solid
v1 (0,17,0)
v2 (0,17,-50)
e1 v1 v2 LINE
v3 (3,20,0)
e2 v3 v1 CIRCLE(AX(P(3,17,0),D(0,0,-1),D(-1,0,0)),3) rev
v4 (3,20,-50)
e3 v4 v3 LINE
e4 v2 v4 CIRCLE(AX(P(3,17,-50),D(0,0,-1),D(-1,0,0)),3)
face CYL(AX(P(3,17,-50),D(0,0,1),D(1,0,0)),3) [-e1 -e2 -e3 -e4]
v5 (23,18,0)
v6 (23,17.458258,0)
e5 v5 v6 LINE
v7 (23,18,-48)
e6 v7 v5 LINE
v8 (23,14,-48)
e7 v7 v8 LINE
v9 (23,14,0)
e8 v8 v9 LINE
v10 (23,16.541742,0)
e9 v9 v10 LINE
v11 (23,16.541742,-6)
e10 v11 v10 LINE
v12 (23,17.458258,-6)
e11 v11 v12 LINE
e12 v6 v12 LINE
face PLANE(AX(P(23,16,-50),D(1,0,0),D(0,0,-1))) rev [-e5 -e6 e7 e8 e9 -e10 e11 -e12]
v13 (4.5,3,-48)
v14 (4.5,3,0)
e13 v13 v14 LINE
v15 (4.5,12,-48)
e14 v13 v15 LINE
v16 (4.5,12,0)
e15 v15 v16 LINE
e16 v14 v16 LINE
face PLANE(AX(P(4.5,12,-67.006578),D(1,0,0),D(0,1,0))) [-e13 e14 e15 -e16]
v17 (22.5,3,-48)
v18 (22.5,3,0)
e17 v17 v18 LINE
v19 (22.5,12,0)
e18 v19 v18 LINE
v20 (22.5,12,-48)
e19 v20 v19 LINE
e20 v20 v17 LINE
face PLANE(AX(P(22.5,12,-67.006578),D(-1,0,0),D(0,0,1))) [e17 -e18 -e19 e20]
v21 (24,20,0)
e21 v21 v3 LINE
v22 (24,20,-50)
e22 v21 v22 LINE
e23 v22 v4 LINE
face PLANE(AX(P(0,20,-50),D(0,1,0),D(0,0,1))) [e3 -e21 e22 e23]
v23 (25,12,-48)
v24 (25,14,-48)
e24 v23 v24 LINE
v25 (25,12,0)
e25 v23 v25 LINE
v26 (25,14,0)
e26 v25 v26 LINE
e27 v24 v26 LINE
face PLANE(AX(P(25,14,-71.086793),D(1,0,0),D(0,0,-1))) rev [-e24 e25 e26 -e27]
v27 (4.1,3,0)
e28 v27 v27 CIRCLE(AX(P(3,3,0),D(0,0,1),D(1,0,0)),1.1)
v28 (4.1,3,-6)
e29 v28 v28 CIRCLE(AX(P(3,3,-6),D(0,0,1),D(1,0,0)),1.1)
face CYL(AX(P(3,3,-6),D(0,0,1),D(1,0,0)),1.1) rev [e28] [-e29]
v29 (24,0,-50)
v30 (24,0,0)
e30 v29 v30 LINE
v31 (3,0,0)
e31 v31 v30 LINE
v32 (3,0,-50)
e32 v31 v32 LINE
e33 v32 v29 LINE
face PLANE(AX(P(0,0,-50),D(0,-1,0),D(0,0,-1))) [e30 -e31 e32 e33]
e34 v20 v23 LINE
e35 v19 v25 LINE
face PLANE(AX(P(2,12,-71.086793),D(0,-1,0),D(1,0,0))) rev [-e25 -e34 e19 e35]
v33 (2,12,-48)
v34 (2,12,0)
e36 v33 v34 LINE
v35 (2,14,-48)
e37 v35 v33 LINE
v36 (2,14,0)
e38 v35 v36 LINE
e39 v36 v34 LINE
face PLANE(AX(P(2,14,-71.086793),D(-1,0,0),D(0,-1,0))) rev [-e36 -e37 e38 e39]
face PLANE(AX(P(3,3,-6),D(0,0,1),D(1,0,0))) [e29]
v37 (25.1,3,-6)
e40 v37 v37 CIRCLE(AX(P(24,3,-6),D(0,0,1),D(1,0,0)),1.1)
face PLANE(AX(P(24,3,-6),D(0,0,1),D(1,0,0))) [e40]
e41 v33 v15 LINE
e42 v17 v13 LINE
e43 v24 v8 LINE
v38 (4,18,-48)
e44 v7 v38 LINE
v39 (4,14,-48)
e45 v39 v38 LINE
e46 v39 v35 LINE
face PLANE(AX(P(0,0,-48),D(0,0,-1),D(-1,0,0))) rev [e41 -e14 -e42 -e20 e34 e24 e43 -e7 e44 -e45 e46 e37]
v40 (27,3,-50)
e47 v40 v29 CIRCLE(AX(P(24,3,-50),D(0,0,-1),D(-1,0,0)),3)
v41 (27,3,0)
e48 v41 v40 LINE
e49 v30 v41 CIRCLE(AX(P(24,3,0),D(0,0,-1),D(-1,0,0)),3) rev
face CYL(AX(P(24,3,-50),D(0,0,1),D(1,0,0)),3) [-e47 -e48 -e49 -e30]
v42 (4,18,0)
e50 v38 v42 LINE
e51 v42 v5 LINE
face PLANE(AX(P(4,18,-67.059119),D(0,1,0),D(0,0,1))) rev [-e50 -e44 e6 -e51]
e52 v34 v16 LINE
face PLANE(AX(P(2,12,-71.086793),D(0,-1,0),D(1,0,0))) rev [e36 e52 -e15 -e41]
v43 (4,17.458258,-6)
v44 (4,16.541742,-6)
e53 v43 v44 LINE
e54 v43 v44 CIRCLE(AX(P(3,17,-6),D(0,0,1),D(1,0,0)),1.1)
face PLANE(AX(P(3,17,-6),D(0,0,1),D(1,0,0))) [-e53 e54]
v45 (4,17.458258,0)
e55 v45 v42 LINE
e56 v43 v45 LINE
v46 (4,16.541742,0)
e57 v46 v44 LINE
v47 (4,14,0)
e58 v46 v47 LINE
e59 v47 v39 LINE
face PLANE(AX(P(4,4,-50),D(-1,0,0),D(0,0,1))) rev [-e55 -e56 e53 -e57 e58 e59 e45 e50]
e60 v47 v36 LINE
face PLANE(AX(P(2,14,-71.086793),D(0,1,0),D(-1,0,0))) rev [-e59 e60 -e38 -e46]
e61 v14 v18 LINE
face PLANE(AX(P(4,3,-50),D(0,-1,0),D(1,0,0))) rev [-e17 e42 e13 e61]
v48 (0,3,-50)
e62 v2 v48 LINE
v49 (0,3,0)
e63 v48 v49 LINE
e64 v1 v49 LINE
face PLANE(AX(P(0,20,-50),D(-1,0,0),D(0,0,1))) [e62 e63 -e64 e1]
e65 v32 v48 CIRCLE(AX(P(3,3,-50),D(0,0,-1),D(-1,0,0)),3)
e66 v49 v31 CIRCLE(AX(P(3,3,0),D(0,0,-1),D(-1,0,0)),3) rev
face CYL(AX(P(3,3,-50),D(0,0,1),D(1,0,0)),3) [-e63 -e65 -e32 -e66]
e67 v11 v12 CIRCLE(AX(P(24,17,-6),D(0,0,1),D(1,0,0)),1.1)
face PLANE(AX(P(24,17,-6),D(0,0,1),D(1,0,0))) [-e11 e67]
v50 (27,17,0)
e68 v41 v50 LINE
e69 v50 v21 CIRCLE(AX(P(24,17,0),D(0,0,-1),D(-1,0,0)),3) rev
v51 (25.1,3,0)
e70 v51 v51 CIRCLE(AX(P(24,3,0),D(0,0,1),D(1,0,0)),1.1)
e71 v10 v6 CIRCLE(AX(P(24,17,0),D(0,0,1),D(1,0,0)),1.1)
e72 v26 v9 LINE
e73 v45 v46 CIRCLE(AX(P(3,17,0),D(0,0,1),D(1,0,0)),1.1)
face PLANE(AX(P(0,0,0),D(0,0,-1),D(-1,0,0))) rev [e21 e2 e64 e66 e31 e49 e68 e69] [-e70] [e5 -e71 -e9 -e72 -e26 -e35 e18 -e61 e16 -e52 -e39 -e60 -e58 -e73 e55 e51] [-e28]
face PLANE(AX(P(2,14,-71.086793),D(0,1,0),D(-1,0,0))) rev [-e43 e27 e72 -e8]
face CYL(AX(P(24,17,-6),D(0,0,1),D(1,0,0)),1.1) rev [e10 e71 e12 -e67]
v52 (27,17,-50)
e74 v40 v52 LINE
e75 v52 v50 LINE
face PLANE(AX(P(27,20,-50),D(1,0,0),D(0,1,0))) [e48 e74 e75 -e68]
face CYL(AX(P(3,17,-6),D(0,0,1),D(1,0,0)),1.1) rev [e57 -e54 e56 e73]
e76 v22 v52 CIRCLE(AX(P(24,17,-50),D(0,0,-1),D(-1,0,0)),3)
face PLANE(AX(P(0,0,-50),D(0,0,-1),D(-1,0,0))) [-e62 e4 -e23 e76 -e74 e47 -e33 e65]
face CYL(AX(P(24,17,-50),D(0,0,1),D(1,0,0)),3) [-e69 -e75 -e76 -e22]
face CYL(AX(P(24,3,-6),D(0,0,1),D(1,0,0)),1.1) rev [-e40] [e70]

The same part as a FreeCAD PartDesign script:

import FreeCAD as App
import Part
import Sketcher

V = App.Vector
Q = App.Units.Quantity


def edges_at(feature, points):
    """Names of the edges that pass closest to the given points."""
    edges = feature.Shape.Edges
    near = lambda p: min(range(len(edges)), key=lambda i: edges[i].distToShape(Part.Vertex(*p))[0])
    return sorted({f"Edge{near(p) + 1}" for p in points})

doc = App.newDocument("Part")
body = doc.addObject("PartDesign::Body", "Body")

sketch1 = doc.addObject("Sketcher::SketchObject", "Sketch")
body.addObject(sketch1)
sketch1.AttachmentSupport = (doc.XY_Plane, [""])
sketch1.MapMode = "FlatFace"
sketch1.addGeometry(Part.LineSegment(V(0, 20, 0), V(0, 0, 0)), False)
sketch1.addGeometry(Part.LineSegment(V(0, 0, 0), V(27, 0, 0)), False)
sketch1.addGeometry(Part.LineSegment(V(27, 0, 0), V(27, 20, 0)), False)
sketch1.addGeometry(Part.LineSegment(V(27, 20, 0), V(0, 20, 0)), False)
sketch1.addGeometry(Part.LineSegment(V(4, 3, 0), V(4, 17, 0)), False)
sketch1.addGeometry(Part.LineSegment(V(4, 17, 0), V(23, 17, 0)), False)
sketch1.addGeometry(Part.LineSegment(V(23, 17, 0), V(23, 3, 0)), False)
sketch1.addGeometry(Part.LineSegment(V(23, 3, 0), V(4, 3, 0)), False)
sketch1.addConstraint(Sketcher.Constraint("Coincident", 0, 2, 1, 1))
sketch1.addConstraint(Sketcher.Constraint("Coincident", 1, 2, 2, 1))
sketch1.addConstraint(Sketcher.Constraint("Coincident", 2, 2, 3, 1))
sketch1.addConstraint(Sketcher.Constraint("Coincident", 3, 2, 0, 1))
sketch1.addConstraint(Sketcher.Constraint("Coincident", 4, 2, 5, 1))
sketch1.addConstraint(Sketcher.Constraint("Coincident", 5, 2, 6, 1))
sketch1.addConstraint(Sketcher.Constraint("Coincident", 6, 2, 7, 1))
sketch1.addConstraint(Sketcher.Constraint("Coincident", 7, 2, 4, 1))
sketch1.addConstraint(Sketcher.Constraint("Vertical", 0))
sketch1.addConstraint(Sketcher.Constraint("Horizontal", 1))
sketch1.addConstraint(Sketcher.Constraint("Vertical", 2))
sketch1.addConstraint(Sketcher.Constraint("Horizontal", 3))
sketch1.addConstraint(Sketcher.Constraint("Vertical", 4))
sketch1.addConstraint(Sketcher.Constraint("Horizontal", 5))
sketch1.addConstraint(Sketcher.Constraint("Vertical", 6))
sketch1.addConstraint(Sketcher.Constraint("Horizontal", 7))
sketch1.addConstraint(Sketcher.Constraint("Coincident", 0, 2, -1, 1))
sketch1.addConstraint(Sketcher.Constraint("DistanceX", 1, 1, 1, 2, Q("27 mm")))
sketch1.addConstraint(Sketcher.Constraint("DistanceX", 5, 1, 5, 2, Q("19 mm")))
sketch1.addConstraint(Sketcher.Constraint("DistanceY", 0, 2, 0, 1, Q("20 mm")))
sketch1.addConstraint(Sketcher.Constraint("DistanceY", 4, 1, 4, 2, Q("14 mm")))
sketch1.addConstraint(Sketcher.Constraint("DistanceX", -1, 1, 4, 2, Q("4 mm")))
sketch1.addConstraint(Sketcher.Constraint("DistanceY", -1, 1, 4, 2, Q("17 mm")))
pad1 = doc.addObject("PartDesign::Pad", "Pad")
body.addObject(pad1)
pad1.Profile = sketch1
pad1.Length = 50
pad1.Reversed = True

sketch2 = doc.addObject("Sketcher::SketchObject", "Sketch001")
body.addObject(sketch2)
sketch2.AttachmentSupport = (doc.XY_Plane, [""])
sketch2.MapMode = "FlatFace"
sketch2.AttachmentOffset = App.Placement(V(0, 0, -50), App.Rotation())
sketch2.addGeometry(Part.LineSegment(V(23, 17, 0), V(23, 3, 0)), False)
sketch2.addGeometry(Part.LineSegment(V(23, 3, 0), V(4, 3, 0)), False)
sketch2.addGeometry(Part.LineSegment(V(4, 3, 0), V(4, 17, 0)), False)
sketch2.addGeometry(Part.LineSegment(V(4, 17, 0), V(23, 17, 0)), False)
sketch2.addConstraint(Sketcher.Constraint("Coincident", 0, 2, 1, 1))
sketch2.addConstraint(Sketcher.Constraint("Coincident", 1, 2, 2, 1))
sketch2.addConstraint(Sketcher.Constraint("Coincident", 2, 2, 3, 1))
sketch2.addConstraint(Sketcher.Constraint("Coincident", 3, 2, 0, 1))
sketch2.addConstraint(Sketcher.Constraint("Vertical", 0))
sketch2.addConstraint(Sketcher.Constraint("Horizontal", 1))
sketch2.addConstraint(Sketcher.Constraint("Vertical", 2))
sketch2.addConstraint(Sketcher.Constraint("Horizontal", 3))
sketch2.addConstraint(Sketcher.Constraint("DistanceX", 1, 2, 1, 1, Q("19 mm")))
sketch2.addConstraint(Sketcher.Constraint("DistanceY", 0, 2, 0, 1, Q("14 mm")))
sketch2.addConstraint(Sketcher.Constraint("DistanceX", -1, 1, 0, 2, Q("23 mm")))
sketch2.addConstraint(Sketcher.Constraint("DistanceY", -1, 1, 0, 2, Q("3 mm")))
pad2 = doc.addObject("PartDesign::Pad", "Pad001")
body.addObject(pad2)
pad2.Profile = sketch2
pad2.Length = 2

sketch3 = doc.addObject("Sketcher::SketchObject", "Sketch002")
body.addObject(sketch3)
sketch3.AttachmentSupport = (doc.XY_Plane, [""])
sketch3.MapMode = "FlatFace"
sketch3.addGeometry(Part.LineSegment(V(2, 14, 0), V(2, 12, 0)), False)
sketch3.addGeometry(Part.LineSegment(V(2, 12, 0), V(25, 12, 0)), False)
sketch3.addGeometry(Part.LineSegment(V(25, 12, 0), V(25, 14, 0)), False)
sketch3.addGeometry(Part.LineSegment(V(25, 14, 0), V(2, 14, 0)), False)
sketch3.addConstraint(Sketcher.Constraint("Coincident", 0, 2, 1, 1))
sketch3.addConstraint(Sketcher.Constraint("Coincident", 1, 2, 2, 1))
sketch3.addConstraint(Sketcher.Constraint("Coincident", 2, 2, 3, 1))
sketch3.addConstraint(Sketcher.Constraint("Coincident", 3, 2, 0, 1))
sketch3.addConstraint(Sketcher.Constraint("Vertical", 0))
sketch3.addConstraint(Sketcher.Constraint("Horizontal", 1))
sketch3.addConstraint(Sketcher.Constraint("Vertical", 2))
sketch3.addConstraint(Sketcher.Constraint("Horizontal", 3))
sketch3.addConstraint(Sketcher.Constraint("DistanceX", 1, 1, 1, 2, Q("23 mm")))
sketch3.addConstraint(Sketcher.Constraint("DistanceY", 0, 2, 0, 1, Q("2 mm")))
sketch3.addConstraint(Sketcher.Constraint("DistanceX", -1, 1, 0, 2, Q("2 mm")))
sketch3.addConstraint(Sketcher.Constraint("DistanceY", -1, 1, 0, 2, Q("12 mm")))
pocket1 = doc.addObject("PartDesign::Pocket", "Pocket")
body.addObject(pocket1)
pocket1.Profile = sketch3
pocket1.Length = 48

sketch4 = doc.addObject("Sketcher::SketchObject", "Sketch003")
body.addObject(sketch4)
sketch4.AttachmentSupport = (doc.XY_Plane, [""])
sketch4.MapMode = "FlatFace"
sketch4.addGeometry(Part.LineSegment(V(4, 12, 0), V(4, 3, 0)), False)
sketch4.addGeometry(Part.LineSegment(V(4, 3, 0), V(4.5, 3, 0)), False)
sketch4.addGeometry(Part.LineSegment(V(4.5, 3, 0), V(4.5, 12, 0)), False)
sketch4.addGeometry(Part.LineSegment(V(4.5, 12, 0), V(4, 12, 0)), False)
sketch4.addGeometry(Part.LineSegment(V(22.5, 12, 0), V(22.5, 3, 0)), False)
sketch4.addGeometry(Part.LineSegment(V(22.5, 3, 0), V(23, 3, 0)), False)
sketch4.addGeometry(Part.LineSegment(V(23, 3, 0), V(23, 12, 0)), False)
sketch4.addGeometry(Part.LineSegment(V(23, 12, 0), V(22.5, 12, 0)), False)
sketch4.addGeometry(Part.LineSegment(V(4, 17, 0), V(4, 16.5, 0)), False)
sketch4.addGeometry(Part.LineSegment(V(4, 16.5, 0), V(23, 16.5, 0)), False)
sketch4.addGeometry(Part.LineSegment(V(23, 16.5, 0), V(23, 17, 0)), False)
sketch4.addGeometry(Part.LineSegment(V(23, 17, 0), V(4, 17, 0)), False)
sketch4.addConstraint(Sketcher.Constraint("Coincident", 0, 2, 1, 1))
sketch4.addConstraint(Sketcher.Constraint("Coincident", 1, 2, 2, 1))
sketch4.addConstraint(Sketcher.Constraint("Coincident", 2, 2, 3, 1))
sketch4.addConstraint(Sketcher.Constraint("Coincident", 3, 2, 0, 1))
sketch4.addConstraint(Sketcher.Constraint("Coincident", 4, 2, 5, 1))
sketch4.addConstraint(Sketcher.Constraint("Coincident", 5, 2, 6, 1))
sketch4.addConstraint(Sketcher.Constraint("Coincident", 6, 2, 7, 1))
sketch4.addConstraint(Sketcher.Constraint("Coincident", 7, 2, 4, 1))
sketch4.addConstraint(Sketcher.Constraint("Coincident", 8, 2, 9, 1))
sketch4.addConstraint(Sketcher.Constraint("Coincident", 9, 2, 10, 1))
sketch4.addConstraint(Sketcher.Constraint("Coincident", 10, 2, 11, 1))
sketch4.addConstraint(Sketcher.Constraint("Coincident", 11, 2, 8, 1))
sketch4.addConstraint(Sketcher.Constraint("Vertical", 0))
sketch4.addConstraint(Sketcher.Constraint("Horizontal", 1))
sketch4.addConstraint(Sketcher.Constraint("Vertical", 2))
sketch4.addConstraint(Sketcher.Constraint("Horizontal", 3))
sketch4.addConstraint(Sketcher.Constraint("Vertical", 4))
sketch4.addConstraint(Sketcher.Constraint("Horizontal", 5))
sketch4.addConstraint(Sketcher.Constraint("Vertical", 6))
sketch4.addConstraint(Sketcher.Constraint("Horizontal", 7))
sketch4.addConstraint(Sketcher.Constraint("Vertical", 8))
sketch4.addConstraint(Sketcher.Constraint("Horizontal", 9))
sketch4.addConstraint(Sketcher.Constraint("Vertical", 10))
sketch4.addConstraint(Sketcher.Constraint("Horizontal", 11))
sketch4.addConstraint(Sketcher.Constraint("Horizontal", 1, 2, 4, 2))
sketch4.addConstraint(Sketcher.Constraint("Horizontal", 3, 2, 6, 2))
sketch4.addConstraint(Sketcher.Constraint("Vertical", 3, 2, 8, 2))
sketch4.addConstraint(Sketcher.Constraint("Vertical", 6, 2, 9, 2))
sketch4.addConstraint(Sketcher.Constraint("Equal", 3, 5))
sketch4.addConstraint(Sketcher.Constraint("Equal", 7, 8))
sketch4.addConstraint(Sketcher.Constraint("DistanceX", 9, 1, 9, 2, Q("19 mm")))
sketch4.addConstraint(Sketcher.Constraint("DistanceY", 0, 2, 0, 1, Q("9 mm")))
sketch4.addConstraint(Sketcher.Constraint("DistanceX", 1, 1, 1, 2, Q("0.5 mm")))
sketch4.addConstraint(Sketcher.Constraint("DistanceX", -1, 1, 0, 2, Q("4 mm")))
sketch4.addConstraint(Sketcher.Constraint("DistanceY", -1, 1, 0, 2, Q("3 mm")))
sketch4.addConstraint(Sketcher.Constraint("DistanceY", -1, 1, 10, 2, Q("17 mm")))
pad3 = doc.addObject("PartDesign::Pad", "Pad002")
body.addObject(pad3)
pad3.Profile = sketch4
pad3.Length = 48
pad3.Reversed = True
doc.recompute()

fillet = doc.addObject("PartDesign::Fillet", "Fillet")
body.addObject(fillet)
fillet.Base = (pad3, edges_at(pad3, [
    (0, 0, -25),
    (0, 20, -25),
    (27, 20, -25),
    (27, 0, -25),
]))
fillet.Radius = 3

sketch5 = doc.addObject("Sketcher::SketchObject", "Sketch004")
body.addObject(sketch5)
sketch5.AttachmentSupport = (doc.XY_Plane, [""])
sketch5.MapMode = "FlatFace"
sketch5.addGeometry(Part.Circle(V(3, 17, 0), V(0, 0, 1), 1.1), False)
sketch5.addGeometry(Part.Circle(V(24, 17, 0), V(0, 0, 1), 1.1), False)
sketch5.addGeometry(Part.Circle(V(24, 3, 0), V(0, 0, 1), 1.1), False)
sketch5.addGeometry(Part.Circle(V(3, 3, 0), V(0, 0, 1), 1.1), False)
sketch5.addConstraint(Sketcher.Constraint("Equal", 0, 1))
sketch5.addConstraint(Sketcher.Constraint("Equal", 1, 2))
sketch5.addConstraint(Sketcher.Constraint("Equal", 2, 3))
sketch5.addConstraint(Sketcher.Constraint("Horizontal", 0, 3, 1, 3))
sketch5.addConstraint(Sketcher.Constraint("Horizontal", 2, 3, 3, 3))
sketch5.addConstraint(Sketcher.Constraint("Vertical", 1, 3, 2, 3))
sketch5.addConstraint(Sketcher.Constraint("Vertical", 0, 3, 3, 3))
sketch5.addConstraint(Sketcher.Constraint("Diameter", 0, Q("2.2 mm")))
sketch5.addConstraint(Sketcher.Constraint("DistanceX", -1, 1, 0, 3, Q("3 mm")))
sketch5.addConstraint(Sketcher.Constraint("DistanceY", -1, 1, 0, 3, Q("17 mm")))
sketch5.addConstraint(Sketcher.Constraint("DistanceX", -1, 1, 1, 3, Q("24 mm")))
sketch5.addConstraint(Sketcher.Constraint("DistanceY", -1, 1, 2, 3, Q("3 mm")))
pocket2 = doc.addObject("PartDesign::Pocket", "Pocket001")
body.addObject(pocket2)
pocket2.Profile = sketch5
pocket2.Length = 6

sketch6 = doc.addObject("Sketcher::SketchObject", "Sketch005")
body.addObject(sketch6)
sketch6.AttachmentSupport = (doc.XY_Plane, [""])
sketch6.MapMode = "FlatFace"
sketch6.addGeometry(Part.LineSegment(V(4, 18, 0), V(4, 16.5, 0)), False)
sketch6.addGeometry(Part.LineSegment(V(4, 16.5, 0), V(23, 16.5, 0)), False)
sketch6.addGeometry(Part.LineSegment(V(23, 16.5, 0), V(23, 18, 0)), False)
sketch6.addGeometry(Part.LineSegment(V(23, 18, 0), V(4, 18, 0)), False)
sketch6.addConstraint(Sketcher.Constraint("Coincident", 0, 2, 1, 1))
sketch6.addConstraint(Sketcher.Constraint("Coincident", 1, 2, 2, 1))
sketch6.addConstraint(Sketcher.Constraint("Coincident", 2, 2, 3, 1))
sketch6.addConstraint(Sketcher.Constraint("Coincident", 3, 2, 0, 1))
sketch6.addConstraint(Sketcher.Constraint("Vertical", 0))
sketch6.addConstraint(Sketcher.Constraint("Horizontal", 1))
sketch6.addConstraint(Sketcher.Constraint("Vertical", 2))
sketch6.addConstraint(Sketcher.Constraint("Horizontal", 3))
sketch6.addConstraint(Sketcher.Constraint("DistanceX", 1, 1, 1, 2, Q("19 mm")))
sketch6.addConstraint(Sketcher.Constraint("DistanceY", 0, 2, 0, 1, Q("1.5 mm")))
sketch6.addConstraint(Sketcher.Constraint("DistanceX", -1, 1, 0, 2, Q("4 mm")))
sketch6.addConstraint(Sketcher.Constraint("DistanceY", -1, 1, 2, 2, Q("18 mm")))
pocket3 = doc.addObject("PartDesign::Pocket", "Pocket002")
body.addObject(pocket3)
pocket3.Profile = sketch6
pocket3.Type = "TwoLengths"
pocket3.Length = 61.241182
pocket3.Length2 = 48
pocket3.Reversed = True

doc.recompute()
